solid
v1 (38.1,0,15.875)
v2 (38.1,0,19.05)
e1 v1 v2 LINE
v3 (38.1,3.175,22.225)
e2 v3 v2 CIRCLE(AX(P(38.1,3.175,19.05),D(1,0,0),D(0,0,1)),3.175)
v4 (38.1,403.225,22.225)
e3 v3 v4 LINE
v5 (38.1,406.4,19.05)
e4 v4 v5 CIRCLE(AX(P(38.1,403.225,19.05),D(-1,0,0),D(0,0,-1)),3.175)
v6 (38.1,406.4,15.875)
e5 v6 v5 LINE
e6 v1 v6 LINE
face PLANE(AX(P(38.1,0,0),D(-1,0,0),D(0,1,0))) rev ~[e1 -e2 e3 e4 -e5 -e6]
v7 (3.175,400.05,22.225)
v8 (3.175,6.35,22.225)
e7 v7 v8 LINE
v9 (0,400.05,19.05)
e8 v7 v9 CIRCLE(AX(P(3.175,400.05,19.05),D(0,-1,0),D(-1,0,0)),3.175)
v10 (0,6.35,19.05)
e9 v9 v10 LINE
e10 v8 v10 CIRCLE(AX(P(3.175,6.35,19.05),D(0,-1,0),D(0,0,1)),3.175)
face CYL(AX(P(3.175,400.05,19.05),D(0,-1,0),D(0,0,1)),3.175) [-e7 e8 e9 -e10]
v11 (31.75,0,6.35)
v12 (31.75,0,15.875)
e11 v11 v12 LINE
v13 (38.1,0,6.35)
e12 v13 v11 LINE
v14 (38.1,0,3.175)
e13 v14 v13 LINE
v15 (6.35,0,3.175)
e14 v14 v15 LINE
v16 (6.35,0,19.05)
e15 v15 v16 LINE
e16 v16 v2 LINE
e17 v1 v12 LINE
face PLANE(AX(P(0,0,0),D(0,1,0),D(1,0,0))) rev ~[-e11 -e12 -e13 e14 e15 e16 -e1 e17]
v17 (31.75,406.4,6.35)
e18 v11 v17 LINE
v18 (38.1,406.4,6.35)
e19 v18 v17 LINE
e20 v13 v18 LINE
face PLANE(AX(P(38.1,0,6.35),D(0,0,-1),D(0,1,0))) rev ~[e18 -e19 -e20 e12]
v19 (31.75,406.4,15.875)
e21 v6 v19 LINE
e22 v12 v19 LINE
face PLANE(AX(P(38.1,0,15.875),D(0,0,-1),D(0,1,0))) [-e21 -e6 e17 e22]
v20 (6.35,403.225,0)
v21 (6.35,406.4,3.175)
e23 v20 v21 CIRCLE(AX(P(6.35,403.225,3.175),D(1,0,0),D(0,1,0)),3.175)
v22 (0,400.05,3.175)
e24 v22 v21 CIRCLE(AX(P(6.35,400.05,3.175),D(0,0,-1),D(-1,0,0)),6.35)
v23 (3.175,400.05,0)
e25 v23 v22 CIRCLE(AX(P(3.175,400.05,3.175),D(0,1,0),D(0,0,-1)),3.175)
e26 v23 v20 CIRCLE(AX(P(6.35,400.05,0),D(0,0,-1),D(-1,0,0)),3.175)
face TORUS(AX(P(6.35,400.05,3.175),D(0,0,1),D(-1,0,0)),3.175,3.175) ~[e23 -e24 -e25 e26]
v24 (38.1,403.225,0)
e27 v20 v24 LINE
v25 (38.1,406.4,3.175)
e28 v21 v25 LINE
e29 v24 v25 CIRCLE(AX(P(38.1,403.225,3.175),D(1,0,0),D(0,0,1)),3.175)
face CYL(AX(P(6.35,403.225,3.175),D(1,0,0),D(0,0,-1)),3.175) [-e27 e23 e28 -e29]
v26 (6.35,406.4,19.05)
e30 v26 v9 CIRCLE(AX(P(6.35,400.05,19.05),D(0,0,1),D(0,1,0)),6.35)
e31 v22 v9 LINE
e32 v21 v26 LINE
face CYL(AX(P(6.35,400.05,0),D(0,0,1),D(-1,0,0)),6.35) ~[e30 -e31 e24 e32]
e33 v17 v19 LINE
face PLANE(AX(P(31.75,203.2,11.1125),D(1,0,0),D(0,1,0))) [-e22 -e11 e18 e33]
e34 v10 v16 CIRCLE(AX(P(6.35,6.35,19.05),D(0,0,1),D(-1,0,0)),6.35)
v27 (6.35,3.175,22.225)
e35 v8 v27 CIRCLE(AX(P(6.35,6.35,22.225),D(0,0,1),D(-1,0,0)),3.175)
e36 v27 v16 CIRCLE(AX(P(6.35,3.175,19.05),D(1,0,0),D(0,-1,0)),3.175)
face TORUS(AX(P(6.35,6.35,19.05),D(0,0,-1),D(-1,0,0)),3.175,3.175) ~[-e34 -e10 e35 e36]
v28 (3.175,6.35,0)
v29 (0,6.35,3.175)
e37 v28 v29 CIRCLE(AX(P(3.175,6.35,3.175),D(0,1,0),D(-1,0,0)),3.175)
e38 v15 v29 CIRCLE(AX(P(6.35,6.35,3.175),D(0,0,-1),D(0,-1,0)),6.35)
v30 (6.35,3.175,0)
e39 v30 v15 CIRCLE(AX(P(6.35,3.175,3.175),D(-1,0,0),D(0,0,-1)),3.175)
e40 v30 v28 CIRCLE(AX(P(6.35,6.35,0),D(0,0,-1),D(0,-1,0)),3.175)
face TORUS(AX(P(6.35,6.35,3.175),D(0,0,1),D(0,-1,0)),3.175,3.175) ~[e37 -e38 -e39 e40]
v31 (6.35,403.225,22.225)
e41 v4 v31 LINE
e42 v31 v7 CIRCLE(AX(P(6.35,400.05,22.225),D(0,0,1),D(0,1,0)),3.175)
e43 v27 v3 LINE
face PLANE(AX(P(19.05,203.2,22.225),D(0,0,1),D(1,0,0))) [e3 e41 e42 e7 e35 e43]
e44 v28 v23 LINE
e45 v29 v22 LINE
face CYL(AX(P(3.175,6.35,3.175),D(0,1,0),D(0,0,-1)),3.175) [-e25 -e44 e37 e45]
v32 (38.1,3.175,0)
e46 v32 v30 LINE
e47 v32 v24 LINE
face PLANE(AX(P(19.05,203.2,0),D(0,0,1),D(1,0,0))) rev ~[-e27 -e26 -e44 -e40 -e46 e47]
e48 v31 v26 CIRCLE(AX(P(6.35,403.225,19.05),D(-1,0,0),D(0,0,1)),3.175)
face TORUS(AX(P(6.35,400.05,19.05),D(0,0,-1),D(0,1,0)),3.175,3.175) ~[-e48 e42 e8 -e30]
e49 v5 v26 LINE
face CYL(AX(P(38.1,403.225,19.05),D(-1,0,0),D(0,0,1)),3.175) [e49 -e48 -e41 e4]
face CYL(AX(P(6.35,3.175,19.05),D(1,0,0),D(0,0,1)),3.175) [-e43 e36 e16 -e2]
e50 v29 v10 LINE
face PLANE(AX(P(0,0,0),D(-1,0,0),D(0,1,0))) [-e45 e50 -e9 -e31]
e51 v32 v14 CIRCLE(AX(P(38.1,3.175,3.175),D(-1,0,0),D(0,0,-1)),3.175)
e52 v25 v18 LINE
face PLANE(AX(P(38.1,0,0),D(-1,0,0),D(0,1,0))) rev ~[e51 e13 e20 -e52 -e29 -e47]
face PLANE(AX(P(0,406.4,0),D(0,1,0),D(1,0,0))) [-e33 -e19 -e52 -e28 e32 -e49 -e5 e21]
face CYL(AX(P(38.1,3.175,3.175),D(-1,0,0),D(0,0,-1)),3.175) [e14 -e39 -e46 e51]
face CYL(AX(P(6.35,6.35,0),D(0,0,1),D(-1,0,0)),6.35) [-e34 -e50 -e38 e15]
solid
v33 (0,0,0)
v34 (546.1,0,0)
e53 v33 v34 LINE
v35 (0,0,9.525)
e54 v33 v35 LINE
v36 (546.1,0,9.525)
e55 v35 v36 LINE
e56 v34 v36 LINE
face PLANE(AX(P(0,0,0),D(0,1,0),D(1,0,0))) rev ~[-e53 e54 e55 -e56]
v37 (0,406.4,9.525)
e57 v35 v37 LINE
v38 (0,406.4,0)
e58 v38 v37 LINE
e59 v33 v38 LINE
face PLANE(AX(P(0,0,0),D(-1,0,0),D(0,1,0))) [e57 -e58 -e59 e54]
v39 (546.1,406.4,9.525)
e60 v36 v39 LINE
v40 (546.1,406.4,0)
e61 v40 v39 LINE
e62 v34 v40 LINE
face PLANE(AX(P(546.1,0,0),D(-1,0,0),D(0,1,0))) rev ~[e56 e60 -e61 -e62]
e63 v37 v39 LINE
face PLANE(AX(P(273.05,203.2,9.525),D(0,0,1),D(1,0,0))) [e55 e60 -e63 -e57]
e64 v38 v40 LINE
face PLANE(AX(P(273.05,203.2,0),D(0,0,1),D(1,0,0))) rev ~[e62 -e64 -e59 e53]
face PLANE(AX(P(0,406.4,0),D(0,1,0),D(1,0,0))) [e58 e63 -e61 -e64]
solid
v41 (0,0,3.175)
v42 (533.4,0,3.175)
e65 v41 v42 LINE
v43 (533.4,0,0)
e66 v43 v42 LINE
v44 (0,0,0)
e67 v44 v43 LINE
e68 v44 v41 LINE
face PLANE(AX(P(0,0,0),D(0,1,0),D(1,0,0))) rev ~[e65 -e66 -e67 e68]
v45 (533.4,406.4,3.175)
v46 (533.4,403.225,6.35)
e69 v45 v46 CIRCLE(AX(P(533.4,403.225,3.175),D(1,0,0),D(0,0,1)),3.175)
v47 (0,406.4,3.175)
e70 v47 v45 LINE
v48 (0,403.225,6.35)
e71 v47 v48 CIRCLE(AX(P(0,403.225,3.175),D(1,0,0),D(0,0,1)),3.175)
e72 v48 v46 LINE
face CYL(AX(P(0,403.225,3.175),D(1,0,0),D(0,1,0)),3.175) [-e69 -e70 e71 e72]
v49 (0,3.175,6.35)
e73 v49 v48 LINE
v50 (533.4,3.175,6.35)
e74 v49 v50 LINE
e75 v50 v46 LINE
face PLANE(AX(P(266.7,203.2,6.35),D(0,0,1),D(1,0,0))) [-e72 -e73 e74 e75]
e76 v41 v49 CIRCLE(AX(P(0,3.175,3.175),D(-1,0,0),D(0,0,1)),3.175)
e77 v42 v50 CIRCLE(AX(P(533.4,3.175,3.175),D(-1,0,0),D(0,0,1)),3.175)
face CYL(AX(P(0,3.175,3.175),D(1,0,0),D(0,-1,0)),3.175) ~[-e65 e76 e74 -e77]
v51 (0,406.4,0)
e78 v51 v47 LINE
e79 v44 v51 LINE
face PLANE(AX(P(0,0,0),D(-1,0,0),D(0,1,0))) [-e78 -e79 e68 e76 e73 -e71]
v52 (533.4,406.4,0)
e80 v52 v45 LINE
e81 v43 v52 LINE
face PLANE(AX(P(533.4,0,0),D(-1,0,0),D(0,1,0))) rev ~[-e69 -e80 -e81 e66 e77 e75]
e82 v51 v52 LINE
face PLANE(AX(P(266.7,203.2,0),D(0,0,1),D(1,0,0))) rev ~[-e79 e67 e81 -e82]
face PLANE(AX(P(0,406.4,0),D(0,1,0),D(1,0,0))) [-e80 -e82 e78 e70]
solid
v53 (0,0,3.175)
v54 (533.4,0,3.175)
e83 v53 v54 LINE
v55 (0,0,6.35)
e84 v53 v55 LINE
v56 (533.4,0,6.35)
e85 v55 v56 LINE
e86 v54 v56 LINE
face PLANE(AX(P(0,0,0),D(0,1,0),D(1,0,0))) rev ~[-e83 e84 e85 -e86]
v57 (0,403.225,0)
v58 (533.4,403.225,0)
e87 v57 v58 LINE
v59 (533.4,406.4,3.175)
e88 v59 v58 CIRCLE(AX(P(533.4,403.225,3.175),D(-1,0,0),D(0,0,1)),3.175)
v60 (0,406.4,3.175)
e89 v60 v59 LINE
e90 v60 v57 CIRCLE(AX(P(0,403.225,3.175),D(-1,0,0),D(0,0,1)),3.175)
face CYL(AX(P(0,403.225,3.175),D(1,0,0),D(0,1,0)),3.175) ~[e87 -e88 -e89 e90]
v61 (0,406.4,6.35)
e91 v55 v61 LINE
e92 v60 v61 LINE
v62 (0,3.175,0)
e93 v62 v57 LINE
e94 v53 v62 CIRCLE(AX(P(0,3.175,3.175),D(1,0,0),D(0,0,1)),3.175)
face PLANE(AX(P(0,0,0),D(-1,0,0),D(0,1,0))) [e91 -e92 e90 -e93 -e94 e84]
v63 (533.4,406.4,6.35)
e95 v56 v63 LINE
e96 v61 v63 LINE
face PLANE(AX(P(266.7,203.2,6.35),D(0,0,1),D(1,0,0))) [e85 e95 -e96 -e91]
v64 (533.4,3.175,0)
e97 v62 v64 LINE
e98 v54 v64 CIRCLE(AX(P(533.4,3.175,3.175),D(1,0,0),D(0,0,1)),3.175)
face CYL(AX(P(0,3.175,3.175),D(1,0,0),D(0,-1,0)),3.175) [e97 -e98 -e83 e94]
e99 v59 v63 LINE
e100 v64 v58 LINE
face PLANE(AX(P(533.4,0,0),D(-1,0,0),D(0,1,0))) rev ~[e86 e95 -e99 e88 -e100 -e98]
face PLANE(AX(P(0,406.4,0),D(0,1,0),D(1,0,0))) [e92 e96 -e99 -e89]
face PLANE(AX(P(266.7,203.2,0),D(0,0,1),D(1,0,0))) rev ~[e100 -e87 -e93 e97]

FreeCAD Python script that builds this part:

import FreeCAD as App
import Part
import Sketcher
Q = App.Units.Quantity


def edges_at(feature, points):
    """Names of the edges that pass closest to the given points."""
    edges = feature.Shape.Edges
    near = lambda p: min(range(len(edges)), key=lambda i: edges[i].distToShape(Part.Vertex(*p))[0])
    return sorted({f"Edge{near(p) + 1}" for p in points})


def add_polygon(sketch, points):
    """Adds a closed chain of lines whose ends are joined by coincident constraints."""
    first, n = sketch.GeometryCount, len(points)
    for a, b in zip(points, points[1:] + points[:1]):
        sketch.addGeometry(Part.LineSegment(App.Vector(*a, 0), App.Vector(*b, 0)), False)
    for i in range(n):
        sketch.addConstraint(Sketcher.Constraint("Coincident", first + i, 2, first + (i + 1) % n, 1))

doc = App.newDocument("Part")
body = doc.addObject("PartDesign::Body", "Body")

sketch1 = body.newObject("Sketcher::SketchObject", "Sketch")
sketch1.AttachmentSupport = (doc.getObject("XY_Plane"), [""])
sketch1.MapMode = "FlatFace"
add_polygon(sketch1, [(0, 406.4), (0, 0), (546.1, 0), (546.1, 406.4)])
sketch1.addConstraint(Sketcher.Constraint("Vertical", 0))
sketch1.addConstraint(Sketcher.Constraint("Horizontal", 1))
sketch1.addConstraint(Sketcher.Constraint("Vertical", 2))
sketch1.addConstraint(Sketcher.Constraint("Horizontal", 3))
sketch1.addConstraint(Sketcher.Constraint("Coincident", 0, 2, -1, 1))
sketch1.addConstraint(Sketcher.Constraint("DistanceY", 0, 2, 0, 1, Q("16 in")))
sketch1.addConstraint(Sketcher.Constraint("DistanceX", 1, 1, 1, 2, Q("21.5 in")))
pad1 = body.newObject("PartDesign::Pad", "Pad")
pad1.Profile = sketch1
pad1.Length = Q("0.375 in")
body2 = doc.addObject("PartDesign::Body", "Body001")

sketch2 = body2.newObject("Sketcher::SketchObject", "Sketch001")
sketch2.AttachmentSupport = (doc.getObject("XY_Plane001"), [""])
sketch2.MapMode = "FlatFace"
add_polygon(sketch2, [(0, 406.4), (0, 0), (533.4, 0), (533.4, 406.4)])
sketch2.addConstraint(Sketcher.Constraint("Vertical", 0))
sketch2.addConstraint(Sketcher.Constraint("Horizontal", 1))
sketch2.addConstraint(Sketcher.Constraint("Vertical", 2))
sketch2.addConstraint(Sketcher.Constraint("Horizontal", 3))
sketch2.addConstraint(Sketcher.Constraint("Coincident", 0, 2, -1, 1))
sketch2.addConstraint(Sketcher.Constraint("DistanceX", 1, 1, 1, 2, Q("21 in")))
sketch2.addConstraint(Sketcher.Constraint("DistanceY", 0, 2, 0, 1, Q("16 in")))
pad2 = body2.newObject("PartDesign::Pad", "Pad001")
pad2.Profile = sketch2
pad2.Length = Q("0.25 in")
doc.recompute()

fillet = body2.newObject("PartDesign::Fillet", "Fillet")
fillet.Base = (pad2, edges_at(pad2, [(266.7, 0, 6.35), (266.7, 406.4, 6.35)]))
fillet.Radius = Q("0.125 in")
body3 = doc.addObject("PartDesign::Body", "Body002")

sketch3 = body3.newObject("Sketcher::SketchObject", "Sketch002")
sketch3.AttachmentSupport = (doc.getObject("XY_Plane002"), [""])
sketch3.MapMode = "FlatFace"
add_polygon(sketch3, [(0, 406.4), (0, 0), (533.4, 0), (533.4, 406.4)])
sketch3.addConstraint(Sketcher.Constraint("Vertical", 0))
sketch3.addConstraint(Sketcher.Constraint("Horizontal", 1))
sketch3.addConstraint(Sketcher.Constraint("Vertical", 2))
sketch3.addConstraint(Sketcher.Constraint("Horizontal", 3))
sketch3.addConstraint(Sketcher.Constraint("Coincident", 0, 2, -1, 1))
sketch3.addConstraint(Sketcher.Constraint("DistanceX", 1, 1, 1, 2, Q("21 in")))
sketch3.addConstraint(Sketcher.Constraint("DistanceY", 0, 2, 0, 1, Q("16 in")))
pad3 = body3.newObject("PartDesign::Pad", "Pad002")
pad3.Profile = sketch3
pad3.Length = Q("0.25 in")
doc.recompute()

fillet2 = body3.newObject("PartDesign::Fillet", "Fillet001")
fillet2.Base = (pad3, edges_at(pad3, [(266.7, 0, 0), (266.7, 406.4, 0)]))
fillet2.Radius = Q("0.125 in")
body4 = doc.addObject("PartDesign::Body", "Body003")

sketch4 = body4.newObject("Sketcher::SketchObject", "Sketch003")
sketch4.AttachmentSupport = (doc.getObject("XY_Plane003"), [""])
sketch4.MapMode = "FlatFace"
add_polygon(sketch4, [(0, 406.4), (0, 0), (38.1, 0), (38.1, 406.4)])
sketch4.addConstraint(Sketcher.Constraint("Vertical", 0))
sketch4.addConstraint(Sketcher.Constraint("Horizontal", 1))
sketch4.addConstraint(Sketcher.Constraint("Vertical", 2))
sketch4.addConstraint(Sketcher.Constraint("Horizontal", 3))
sketch4.addConstraint(Sketcher.Constraint("Coincident", 0, 2, -1, 1))
sketch4.addConstraint(Sketcher.Constraint("DistanceY", 0, 2, 0, 1, Q("16 in")))
sketch4.addConstraint(Sketcher.Constraint("DistanceX", 1, 1, 1, 2, Q("1.5 in")))
pad4 = body4.newObject("PartDesign::Pad", "Pad003")
pad4.Profile = sketch4
pad4.Length = Q("0.875 in")

sketch5 = body4.newObject("Sketcher::SketchObject", "Sketch004")
sketch5.AttachmentSupport = (doc.getObject("YZ_Plane003"), [""])
sketch5.MapMode = "FlatFace"
sketch5.AttachmentOffset = App.Placement(App.Vector(0, 0, 1.5 * 25.4), App.Rotation())
add_polygon(sketch5, [(0, 15.875), (0, 6.35), (406.4, 6.35), (406.4, 15.875)])
sketch5.addConstraint(Sketcher.Constraint("Vertical", 0))
sketch5.addConstraint(Sketcher.Constraint("Horizontal", 1))
sketch5.addConstraint(Sketcher.Constraint("Vertical", 2))
sketch5.addConstraint(Sketcher.Constraint("Horizontal", 3))
sketch5.addConstraint(Sketcher.Constraint("PointOnObject", 0, 2, -2))
sketch5.addConstraint(Sketcher.Constraint("DistanceX", 1, 1, 1, 2, Q("16 in")))
sketch5.addConstraint(Sketcher.Constraint("DistanceY", 0, 2, 0, 1, Q("0.375 in")))
sketch5.addConstraint(Sketcher.Constraint("DistanceY", -1, 1, 0, 2, Q("0.25 in")))
pocket1 = body4.newObject("PartDesign::Pocket", "Pocket")
pocket1.Profile = sketch5
pocket1.Length = Q("0.25 in")
doc.recompute()

fillet3 = body4.newObject("PartDesign::Fillet", "Fillet002")
fillet3.Base = (pocket1, edges_at(pocket1, [(0, 0, 11.113), (0, 406.4, 11.113)]))
fillet3.Radius = Q("0.25 in")
doc.recompute()

fillet4 = body4.newObject("PartDesign::Fillet", "Fillet003")
fillet4.Base = (fillet3, edges_at(fillet3, [
    (22.225, 406.4, 0),
    (1.86, 404.54, 0),
    (0, 203.2, 0),
    (1.86, 1.86, 0),
    (22.225, 0, 0),
]))
fillet4.Radius = Q("0.125 in")
doc.recompute()

fillet5 = body4.newObject("PartDesign::Fillet", "Fillet004")
fillet5.Base = (fillet4, edges_at(fillet4, [
    (22.225, 0, 22.225),
    (1.86, 1.86, 22.225),
    (0, 203.2, 22.225),
    (1.86, 404.54, 22.225),
    (22.225, 406.4, 22.225),
]))
fillet5.Radius = Q("0.125 in")

doc.recompute()
